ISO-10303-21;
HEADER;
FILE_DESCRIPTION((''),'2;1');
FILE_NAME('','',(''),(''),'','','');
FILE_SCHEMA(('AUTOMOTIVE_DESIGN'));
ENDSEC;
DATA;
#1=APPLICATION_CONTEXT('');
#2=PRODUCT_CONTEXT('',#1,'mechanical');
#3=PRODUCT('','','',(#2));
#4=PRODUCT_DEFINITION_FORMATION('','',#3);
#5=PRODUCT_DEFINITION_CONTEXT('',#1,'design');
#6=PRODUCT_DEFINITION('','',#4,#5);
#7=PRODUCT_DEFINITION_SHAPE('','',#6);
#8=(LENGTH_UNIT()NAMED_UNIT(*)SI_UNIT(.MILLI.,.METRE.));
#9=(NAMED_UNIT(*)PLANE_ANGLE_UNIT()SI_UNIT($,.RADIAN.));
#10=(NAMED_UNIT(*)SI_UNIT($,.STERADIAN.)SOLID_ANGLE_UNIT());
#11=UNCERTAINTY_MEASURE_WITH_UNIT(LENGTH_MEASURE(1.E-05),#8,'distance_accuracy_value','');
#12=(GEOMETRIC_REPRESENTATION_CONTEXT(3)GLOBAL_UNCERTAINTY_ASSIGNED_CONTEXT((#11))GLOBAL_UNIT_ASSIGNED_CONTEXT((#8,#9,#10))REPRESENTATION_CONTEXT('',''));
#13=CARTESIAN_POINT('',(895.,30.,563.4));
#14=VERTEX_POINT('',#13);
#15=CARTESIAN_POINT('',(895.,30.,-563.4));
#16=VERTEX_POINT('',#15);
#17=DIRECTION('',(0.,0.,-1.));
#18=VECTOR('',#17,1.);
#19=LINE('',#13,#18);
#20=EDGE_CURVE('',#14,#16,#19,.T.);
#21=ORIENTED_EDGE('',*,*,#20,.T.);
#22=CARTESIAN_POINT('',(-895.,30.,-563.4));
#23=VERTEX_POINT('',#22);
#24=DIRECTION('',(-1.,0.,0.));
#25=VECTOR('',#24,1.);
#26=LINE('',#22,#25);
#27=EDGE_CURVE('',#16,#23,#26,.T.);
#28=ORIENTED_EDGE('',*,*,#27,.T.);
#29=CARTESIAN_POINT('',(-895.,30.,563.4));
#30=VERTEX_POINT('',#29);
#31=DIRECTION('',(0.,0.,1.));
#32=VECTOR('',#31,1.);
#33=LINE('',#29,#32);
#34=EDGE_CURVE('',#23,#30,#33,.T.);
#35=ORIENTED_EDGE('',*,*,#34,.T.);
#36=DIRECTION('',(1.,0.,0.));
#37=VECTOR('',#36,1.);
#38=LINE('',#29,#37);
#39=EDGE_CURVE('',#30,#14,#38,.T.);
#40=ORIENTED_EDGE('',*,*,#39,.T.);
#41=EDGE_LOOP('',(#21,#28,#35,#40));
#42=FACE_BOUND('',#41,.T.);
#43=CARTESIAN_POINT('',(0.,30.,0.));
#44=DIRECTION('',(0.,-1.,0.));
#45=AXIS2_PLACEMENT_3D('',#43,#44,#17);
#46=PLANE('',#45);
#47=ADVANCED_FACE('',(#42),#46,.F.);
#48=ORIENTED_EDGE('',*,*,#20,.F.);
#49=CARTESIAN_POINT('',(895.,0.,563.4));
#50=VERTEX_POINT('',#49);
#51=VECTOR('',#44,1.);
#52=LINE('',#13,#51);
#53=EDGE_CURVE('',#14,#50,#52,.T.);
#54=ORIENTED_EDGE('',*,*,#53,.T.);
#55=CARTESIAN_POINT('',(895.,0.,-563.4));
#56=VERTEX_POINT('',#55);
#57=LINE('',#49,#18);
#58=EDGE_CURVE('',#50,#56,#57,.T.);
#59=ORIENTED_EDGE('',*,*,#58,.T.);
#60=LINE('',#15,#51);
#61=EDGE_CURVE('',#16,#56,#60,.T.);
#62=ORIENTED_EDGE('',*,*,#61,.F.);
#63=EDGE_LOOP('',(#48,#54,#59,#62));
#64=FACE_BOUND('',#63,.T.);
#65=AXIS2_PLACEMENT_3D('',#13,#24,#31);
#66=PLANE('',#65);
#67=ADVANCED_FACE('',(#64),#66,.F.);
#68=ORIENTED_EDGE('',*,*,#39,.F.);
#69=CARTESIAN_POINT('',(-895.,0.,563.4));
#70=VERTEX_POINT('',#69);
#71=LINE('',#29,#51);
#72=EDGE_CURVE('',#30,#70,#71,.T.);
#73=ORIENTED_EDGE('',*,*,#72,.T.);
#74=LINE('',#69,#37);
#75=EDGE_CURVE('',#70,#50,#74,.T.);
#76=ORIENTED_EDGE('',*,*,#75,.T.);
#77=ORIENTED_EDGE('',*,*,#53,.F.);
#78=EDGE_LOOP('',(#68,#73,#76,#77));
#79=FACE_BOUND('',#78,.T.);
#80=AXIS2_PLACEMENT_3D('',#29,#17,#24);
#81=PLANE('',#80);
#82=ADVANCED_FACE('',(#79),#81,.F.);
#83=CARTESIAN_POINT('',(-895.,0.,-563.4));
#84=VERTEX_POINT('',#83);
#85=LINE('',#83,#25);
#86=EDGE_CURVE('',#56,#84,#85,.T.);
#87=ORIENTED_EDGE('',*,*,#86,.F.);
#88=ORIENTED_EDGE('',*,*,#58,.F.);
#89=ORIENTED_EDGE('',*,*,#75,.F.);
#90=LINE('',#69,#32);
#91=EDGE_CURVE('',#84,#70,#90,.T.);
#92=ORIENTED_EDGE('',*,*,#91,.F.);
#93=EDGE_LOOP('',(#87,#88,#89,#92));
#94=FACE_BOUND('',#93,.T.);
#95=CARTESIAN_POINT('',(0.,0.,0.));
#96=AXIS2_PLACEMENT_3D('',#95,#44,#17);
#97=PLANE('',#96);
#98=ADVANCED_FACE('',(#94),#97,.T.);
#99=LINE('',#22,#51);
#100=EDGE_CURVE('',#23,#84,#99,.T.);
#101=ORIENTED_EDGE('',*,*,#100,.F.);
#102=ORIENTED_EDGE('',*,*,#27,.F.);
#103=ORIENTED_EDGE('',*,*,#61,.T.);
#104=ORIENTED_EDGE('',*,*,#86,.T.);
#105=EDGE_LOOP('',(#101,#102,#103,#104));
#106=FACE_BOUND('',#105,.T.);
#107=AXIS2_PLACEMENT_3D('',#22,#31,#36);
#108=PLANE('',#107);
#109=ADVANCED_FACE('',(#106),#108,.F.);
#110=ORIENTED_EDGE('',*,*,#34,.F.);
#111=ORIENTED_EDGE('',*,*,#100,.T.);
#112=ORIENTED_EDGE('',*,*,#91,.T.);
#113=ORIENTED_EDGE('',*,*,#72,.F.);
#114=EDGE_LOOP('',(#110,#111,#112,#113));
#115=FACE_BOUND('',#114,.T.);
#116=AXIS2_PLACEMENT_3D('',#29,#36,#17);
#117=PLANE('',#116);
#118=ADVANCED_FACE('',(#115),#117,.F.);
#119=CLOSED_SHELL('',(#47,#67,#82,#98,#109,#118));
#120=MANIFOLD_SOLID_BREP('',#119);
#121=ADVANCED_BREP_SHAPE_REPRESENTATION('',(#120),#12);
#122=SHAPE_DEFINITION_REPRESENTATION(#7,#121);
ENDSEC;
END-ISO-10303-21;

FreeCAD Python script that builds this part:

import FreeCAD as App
import Part
import Sketcher
Q = App.Units.Quantity


def add_polygon(sketch, points):
    """Adds a closed chain of lines whose ends are joined by coincident constraints."""
    first, n = sketch.GeometryCount, len(points)
    for a, b in zip(points, points[1:] + points[:1]):
        sketch.addGeometry(Part.LineSegment(App.Vector(*a, 0), App.Vector(*b, 0)), False)
    for i in range(n):
        sketch.addConstraint(Sketcher.Constraint("Coincident", first + i, 2, first + (i + 1) % n, 1))

doc = App.newDocument("Part")
body = doc.addObject("PartDesign::Body", "Body")

# Sketch on XZ plane
sketch1 = body.newObject("Sketcher::SketchObject", "Sketch")
sketch1.AttachmentSupport = (doc.getObject("XZ_Plane"), [""])
sketch1.MapMode = "FlatFace"
add_polygon(sketch1, [(-895, -563), (-895, 563), (895, 563), (895, -563)])  # lines 0-3
sketch1.addConstraint(Sketcher.Constraint("Vertical", 0))
sketch1.addConstraint(Sketcher.Constraint("Horizontal", 1))
sketch1.addConstraint(Sketcher.Constraint("Vertical", 2))
sketch1.addConstraint(Sketcher.Constraint("Horizontal", 3))
sketch1.addConstraint(Sketcher.Constraint("Symmetric", 0, 2, 2, 2, -1, 1))
sketch1.addConstraint(Sketcher.Constraint("DistanceX", 1, 1, 1, 2, Q("1790 mm")))
sketch1.addConstraint(Sketcher.Constraint("DistanceY", 0, 1, 0, 2, Q("1126.8 mm")))
pad1 = body.newObject("PartDesign::Pad", "Pad")
pad1.Profile = sketch1
pad1.Length = 30
pad1.Reversed = True

doc.recompute()
